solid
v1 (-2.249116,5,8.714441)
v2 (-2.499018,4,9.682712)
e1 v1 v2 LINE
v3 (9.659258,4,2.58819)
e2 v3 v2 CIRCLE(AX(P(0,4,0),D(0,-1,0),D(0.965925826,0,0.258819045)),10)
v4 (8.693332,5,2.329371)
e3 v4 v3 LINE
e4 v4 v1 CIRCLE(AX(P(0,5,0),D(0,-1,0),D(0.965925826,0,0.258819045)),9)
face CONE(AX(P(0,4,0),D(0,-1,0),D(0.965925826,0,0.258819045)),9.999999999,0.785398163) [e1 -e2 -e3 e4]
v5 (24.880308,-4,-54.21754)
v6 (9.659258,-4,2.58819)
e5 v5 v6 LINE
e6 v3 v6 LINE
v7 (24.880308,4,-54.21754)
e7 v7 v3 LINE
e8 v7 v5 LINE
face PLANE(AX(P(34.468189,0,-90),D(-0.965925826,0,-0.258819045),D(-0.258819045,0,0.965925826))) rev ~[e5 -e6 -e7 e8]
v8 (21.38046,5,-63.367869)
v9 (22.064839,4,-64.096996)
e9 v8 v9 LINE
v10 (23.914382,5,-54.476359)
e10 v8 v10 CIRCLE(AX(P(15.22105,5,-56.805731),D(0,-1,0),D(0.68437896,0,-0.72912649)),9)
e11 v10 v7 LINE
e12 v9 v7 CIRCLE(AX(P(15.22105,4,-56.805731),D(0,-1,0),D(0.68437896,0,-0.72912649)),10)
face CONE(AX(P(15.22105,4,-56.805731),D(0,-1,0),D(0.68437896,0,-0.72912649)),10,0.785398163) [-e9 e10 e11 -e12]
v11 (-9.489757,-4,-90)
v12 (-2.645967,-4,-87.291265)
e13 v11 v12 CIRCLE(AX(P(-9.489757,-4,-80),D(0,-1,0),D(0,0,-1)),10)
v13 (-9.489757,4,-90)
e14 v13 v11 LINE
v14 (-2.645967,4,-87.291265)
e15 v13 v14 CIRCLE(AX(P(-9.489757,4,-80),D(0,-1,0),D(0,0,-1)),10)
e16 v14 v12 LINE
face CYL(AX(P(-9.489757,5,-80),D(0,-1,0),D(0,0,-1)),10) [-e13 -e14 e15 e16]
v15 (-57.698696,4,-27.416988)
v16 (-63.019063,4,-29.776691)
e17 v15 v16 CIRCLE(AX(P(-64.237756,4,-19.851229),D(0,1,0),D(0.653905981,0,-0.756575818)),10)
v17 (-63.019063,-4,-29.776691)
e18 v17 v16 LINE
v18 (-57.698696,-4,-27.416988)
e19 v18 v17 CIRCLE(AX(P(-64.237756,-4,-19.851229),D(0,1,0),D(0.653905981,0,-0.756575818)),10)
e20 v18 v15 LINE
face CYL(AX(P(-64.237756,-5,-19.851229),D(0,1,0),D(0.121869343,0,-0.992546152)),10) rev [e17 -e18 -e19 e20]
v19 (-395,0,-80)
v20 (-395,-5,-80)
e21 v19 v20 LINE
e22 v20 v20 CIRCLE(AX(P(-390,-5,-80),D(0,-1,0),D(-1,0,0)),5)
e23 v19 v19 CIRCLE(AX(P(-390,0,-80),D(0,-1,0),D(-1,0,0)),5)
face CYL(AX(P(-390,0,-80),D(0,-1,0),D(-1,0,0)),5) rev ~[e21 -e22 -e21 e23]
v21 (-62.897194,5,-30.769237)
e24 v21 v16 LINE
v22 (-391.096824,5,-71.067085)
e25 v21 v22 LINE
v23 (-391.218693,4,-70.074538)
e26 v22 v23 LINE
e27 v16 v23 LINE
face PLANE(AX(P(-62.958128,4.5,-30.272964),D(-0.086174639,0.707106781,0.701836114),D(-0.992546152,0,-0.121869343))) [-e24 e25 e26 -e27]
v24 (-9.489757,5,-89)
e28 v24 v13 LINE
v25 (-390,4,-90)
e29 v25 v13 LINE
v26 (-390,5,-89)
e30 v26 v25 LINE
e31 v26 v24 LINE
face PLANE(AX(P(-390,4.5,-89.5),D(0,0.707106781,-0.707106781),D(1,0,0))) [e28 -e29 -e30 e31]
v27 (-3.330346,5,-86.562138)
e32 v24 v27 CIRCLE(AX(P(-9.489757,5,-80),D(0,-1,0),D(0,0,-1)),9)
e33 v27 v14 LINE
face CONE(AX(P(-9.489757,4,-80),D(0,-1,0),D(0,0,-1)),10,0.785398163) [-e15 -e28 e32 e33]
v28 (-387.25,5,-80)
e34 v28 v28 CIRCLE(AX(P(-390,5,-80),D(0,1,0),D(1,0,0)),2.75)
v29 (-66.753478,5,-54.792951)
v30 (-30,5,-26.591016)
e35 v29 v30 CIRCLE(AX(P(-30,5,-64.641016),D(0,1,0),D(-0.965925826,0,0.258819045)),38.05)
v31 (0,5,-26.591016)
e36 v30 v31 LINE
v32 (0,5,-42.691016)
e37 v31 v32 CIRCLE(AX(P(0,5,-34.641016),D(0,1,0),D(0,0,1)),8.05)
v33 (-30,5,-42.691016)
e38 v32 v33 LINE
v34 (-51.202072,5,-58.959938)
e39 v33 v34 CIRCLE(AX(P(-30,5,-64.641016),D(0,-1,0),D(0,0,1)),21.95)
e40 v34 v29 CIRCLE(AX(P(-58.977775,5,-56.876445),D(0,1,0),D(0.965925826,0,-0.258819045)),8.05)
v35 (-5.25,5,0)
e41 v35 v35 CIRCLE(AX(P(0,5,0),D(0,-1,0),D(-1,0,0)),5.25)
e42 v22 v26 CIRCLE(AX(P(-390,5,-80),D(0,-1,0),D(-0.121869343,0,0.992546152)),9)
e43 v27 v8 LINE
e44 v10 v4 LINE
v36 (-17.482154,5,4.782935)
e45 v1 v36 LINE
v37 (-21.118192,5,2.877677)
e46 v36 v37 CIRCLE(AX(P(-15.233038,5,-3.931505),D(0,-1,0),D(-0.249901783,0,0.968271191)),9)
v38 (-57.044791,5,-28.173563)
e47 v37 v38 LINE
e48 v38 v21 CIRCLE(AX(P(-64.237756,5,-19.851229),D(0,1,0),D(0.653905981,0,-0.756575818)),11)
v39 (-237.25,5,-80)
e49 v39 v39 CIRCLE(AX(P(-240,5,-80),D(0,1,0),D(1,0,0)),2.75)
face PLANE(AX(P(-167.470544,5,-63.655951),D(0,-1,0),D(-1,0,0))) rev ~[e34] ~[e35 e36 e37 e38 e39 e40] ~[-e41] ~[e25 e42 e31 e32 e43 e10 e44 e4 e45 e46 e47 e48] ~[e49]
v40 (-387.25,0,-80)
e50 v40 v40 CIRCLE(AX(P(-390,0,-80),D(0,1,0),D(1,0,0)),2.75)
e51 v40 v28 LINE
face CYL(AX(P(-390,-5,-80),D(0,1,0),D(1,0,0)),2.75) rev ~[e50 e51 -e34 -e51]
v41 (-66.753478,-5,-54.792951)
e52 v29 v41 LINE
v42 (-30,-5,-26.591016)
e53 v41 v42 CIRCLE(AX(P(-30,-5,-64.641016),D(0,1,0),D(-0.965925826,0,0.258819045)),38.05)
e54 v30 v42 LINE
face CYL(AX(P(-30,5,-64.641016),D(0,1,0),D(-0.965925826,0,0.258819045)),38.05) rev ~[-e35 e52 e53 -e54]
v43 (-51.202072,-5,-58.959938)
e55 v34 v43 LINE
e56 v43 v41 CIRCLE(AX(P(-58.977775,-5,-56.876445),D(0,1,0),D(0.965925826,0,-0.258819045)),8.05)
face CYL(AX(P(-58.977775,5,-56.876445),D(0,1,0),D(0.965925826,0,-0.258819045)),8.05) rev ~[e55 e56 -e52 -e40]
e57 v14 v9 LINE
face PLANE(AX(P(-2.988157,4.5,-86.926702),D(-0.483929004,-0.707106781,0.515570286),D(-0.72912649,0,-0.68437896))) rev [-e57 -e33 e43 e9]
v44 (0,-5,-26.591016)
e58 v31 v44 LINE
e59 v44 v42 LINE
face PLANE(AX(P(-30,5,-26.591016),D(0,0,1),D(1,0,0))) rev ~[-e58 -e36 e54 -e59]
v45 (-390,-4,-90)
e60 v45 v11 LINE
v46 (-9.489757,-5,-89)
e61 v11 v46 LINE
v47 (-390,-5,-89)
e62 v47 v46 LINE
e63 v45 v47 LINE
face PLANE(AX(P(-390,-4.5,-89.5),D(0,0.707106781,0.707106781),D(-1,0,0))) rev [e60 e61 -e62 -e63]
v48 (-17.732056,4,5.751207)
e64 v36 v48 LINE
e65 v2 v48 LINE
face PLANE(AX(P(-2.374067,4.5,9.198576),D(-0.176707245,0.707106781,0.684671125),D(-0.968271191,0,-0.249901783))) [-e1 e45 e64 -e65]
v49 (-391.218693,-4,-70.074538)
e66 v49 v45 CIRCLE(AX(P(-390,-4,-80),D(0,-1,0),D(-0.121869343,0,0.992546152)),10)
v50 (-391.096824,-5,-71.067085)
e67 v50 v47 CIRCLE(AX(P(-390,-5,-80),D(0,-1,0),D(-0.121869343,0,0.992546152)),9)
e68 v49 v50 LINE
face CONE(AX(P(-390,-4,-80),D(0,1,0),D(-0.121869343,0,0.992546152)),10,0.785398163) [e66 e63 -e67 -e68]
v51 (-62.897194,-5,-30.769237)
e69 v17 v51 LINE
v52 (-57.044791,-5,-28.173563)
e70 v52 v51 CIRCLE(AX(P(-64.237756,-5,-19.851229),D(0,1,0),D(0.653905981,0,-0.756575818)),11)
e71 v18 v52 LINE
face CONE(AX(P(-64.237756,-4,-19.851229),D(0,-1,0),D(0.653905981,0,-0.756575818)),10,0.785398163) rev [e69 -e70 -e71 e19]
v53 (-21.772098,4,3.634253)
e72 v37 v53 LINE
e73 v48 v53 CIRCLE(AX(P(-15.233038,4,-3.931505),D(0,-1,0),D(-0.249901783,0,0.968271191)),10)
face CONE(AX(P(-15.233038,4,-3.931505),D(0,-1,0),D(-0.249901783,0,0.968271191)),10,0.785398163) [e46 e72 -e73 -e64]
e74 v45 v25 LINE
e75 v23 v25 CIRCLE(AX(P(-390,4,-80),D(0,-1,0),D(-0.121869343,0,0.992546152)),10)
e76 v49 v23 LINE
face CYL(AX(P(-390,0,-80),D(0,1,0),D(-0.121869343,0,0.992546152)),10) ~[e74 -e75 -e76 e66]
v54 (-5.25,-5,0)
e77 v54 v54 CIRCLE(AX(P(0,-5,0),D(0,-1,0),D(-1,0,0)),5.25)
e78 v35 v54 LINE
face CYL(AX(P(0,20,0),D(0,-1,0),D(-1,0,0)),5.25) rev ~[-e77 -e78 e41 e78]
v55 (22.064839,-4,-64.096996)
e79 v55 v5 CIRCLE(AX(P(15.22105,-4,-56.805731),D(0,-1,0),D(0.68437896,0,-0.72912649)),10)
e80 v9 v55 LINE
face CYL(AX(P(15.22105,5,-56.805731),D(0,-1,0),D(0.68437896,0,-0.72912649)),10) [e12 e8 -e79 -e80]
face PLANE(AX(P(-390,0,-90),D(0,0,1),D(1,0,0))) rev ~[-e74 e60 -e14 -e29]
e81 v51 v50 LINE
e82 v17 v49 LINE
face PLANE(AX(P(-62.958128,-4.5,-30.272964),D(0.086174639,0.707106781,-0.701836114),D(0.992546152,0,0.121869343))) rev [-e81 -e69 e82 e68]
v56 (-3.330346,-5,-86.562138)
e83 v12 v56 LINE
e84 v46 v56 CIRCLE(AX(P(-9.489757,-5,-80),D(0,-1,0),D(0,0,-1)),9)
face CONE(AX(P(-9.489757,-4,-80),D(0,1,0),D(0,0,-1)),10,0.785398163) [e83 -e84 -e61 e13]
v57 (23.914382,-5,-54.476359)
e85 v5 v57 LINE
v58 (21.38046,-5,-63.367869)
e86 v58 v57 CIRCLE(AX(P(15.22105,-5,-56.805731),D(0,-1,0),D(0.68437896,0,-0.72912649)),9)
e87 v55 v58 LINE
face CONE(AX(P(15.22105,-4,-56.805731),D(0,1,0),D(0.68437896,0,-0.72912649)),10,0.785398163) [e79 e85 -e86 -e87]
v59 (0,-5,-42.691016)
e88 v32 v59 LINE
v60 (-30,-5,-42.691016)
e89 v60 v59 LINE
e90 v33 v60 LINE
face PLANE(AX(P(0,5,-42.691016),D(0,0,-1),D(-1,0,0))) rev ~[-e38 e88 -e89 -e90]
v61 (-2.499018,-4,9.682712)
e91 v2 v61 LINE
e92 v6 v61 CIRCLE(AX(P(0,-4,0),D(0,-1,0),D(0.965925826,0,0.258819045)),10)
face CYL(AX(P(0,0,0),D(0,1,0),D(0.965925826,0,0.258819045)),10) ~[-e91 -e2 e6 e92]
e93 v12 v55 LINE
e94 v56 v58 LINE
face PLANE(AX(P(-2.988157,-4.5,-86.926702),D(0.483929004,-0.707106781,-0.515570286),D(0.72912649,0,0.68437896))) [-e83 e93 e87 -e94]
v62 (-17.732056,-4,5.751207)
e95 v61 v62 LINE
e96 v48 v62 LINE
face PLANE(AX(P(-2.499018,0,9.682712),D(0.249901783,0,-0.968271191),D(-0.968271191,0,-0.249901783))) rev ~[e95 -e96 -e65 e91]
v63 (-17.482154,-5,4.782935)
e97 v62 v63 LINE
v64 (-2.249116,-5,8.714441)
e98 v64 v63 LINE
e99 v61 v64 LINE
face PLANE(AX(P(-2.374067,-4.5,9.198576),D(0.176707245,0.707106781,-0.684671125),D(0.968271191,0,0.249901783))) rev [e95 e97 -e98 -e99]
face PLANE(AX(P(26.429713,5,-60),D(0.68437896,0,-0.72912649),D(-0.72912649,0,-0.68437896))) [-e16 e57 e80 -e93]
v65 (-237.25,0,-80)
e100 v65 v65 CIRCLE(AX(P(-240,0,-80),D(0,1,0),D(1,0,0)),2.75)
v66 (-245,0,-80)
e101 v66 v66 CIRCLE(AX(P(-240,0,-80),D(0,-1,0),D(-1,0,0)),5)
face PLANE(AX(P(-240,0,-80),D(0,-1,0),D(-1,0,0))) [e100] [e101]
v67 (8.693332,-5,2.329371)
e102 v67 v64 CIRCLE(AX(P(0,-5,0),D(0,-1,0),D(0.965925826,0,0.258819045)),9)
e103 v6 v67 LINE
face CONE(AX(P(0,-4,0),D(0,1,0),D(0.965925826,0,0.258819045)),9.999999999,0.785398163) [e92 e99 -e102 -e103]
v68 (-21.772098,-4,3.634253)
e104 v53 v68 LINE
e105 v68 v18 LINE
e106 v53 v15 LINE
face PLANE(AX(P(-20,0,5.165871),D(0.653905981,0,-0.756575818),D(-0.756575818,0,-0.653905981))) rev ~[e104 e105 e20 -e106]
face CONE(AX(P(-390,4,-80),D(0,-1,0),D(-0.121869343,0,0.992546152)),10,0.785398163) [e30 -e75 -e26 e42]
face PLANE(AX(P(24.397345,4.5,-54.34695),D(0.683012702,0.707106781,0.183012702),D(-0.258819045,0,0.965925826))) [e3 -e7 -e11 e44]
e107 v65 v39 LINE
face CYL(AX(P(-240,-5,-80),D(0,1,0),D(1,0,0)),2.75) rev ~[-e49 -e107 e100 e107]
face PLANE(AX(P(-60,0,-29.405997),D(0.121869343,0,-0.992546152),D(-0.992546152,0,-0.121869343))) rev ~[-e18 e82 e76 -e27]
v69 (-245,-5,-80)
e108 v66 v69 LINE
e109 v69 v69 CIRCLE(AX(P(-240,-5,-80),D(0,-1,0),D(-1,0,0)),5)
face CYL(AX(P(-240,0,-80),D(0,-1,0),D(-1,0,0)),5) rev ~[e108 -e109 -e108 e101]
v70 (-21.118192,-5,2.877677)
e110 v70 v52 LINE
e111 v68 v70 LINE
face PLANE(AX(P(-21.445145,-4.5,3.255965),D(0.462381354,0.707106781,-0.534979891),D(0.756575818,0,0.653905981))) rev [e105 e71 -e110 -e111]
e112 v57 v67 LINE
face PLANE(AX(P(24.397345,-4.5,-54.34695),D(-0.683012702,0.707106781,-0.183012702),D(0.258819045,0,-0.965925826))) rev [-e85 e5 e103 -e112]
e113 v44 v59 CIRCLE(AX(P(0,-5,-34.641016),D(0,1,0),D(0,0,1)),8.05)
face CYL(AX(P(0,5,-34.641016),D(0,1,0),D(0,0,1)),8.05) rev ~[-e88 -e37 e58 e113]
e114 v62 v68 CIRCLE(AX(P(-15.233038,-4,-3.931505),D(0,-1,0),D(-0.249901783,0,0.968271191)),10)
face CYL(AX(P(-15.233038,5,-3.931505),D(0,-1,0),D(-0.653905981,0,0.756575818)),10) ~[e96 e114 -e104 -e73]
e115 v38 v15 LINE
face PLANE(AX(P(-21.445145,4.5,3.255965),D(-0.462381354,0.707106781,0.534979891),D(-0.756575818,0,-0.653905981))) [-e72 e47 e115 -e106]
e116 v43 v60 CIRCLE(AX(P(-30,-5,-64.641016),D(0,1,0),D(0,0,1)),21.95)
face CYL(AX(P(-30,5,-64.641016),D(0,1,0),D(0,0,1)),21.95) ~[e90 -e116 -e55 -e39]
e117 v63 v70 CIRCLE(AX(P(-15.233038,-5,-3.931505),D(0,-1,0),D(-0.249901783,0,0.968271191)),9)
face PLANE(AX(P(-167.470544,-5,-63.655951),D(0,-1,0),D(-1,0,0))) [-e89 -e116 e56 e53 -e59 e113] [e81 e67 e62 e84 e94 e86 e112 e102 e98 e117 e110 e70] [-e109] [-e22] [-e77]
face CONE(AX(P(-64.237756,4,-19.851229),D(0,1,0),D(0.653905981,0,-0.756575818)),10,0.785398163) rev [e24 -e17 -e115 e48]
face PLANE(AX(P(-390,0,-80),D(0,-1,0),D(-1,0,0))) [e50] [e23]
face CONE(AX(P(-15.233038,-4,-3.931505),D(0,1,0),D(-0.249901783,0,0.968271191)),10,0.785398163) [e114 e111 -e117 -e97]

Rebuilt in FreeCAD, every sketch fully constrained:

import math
import FreeCAD as App
import Part
import Sketcher

V = App.Vector
Q = App.Units.Quantity


def edges_at(feature, points):
    """Names of the edges that pass closest to the given points."""
    edges = feature.Shape.Edges
    near = lambda p: min(range(len(edges)), key=lambda i: edges[i].distToShape(Part.Vertex(*p))[0])
    return sorted({f"Edge{near(p) + 1}" for p in points})


def add_polygon(sketch, points):
    """Adds a closed chain of lines whose ends are joined by coincident constraints."""
    first, n = sketch.GeometryCount, len(points)
    for a, b in zip(points, points[1:] + points[:1]):
        sketch.addGeometry(Part.LineSegment(App.Vector(*a, 0), App.Vector(*b, 0)), False)
    for i in range(n):
        sketch.addConstraint(Sketcher.Constraint("Coincident", first + i, 2, first + (i + 1) % n, 1))

doc = App.newDocument("Part")
body = doc.addObject("PartDesign::Body", "Body")

# Sketch on XZ plane
sketch1 = body.newObject("Sketcher::SketchObject", "Sketch")
sketch1.AttachmentSupport = (doc.getObject("XZ_Plane"), [""])
sketch1.MapMode = "FlatFace"
sketch1.addGeometry([
    Part.LineSegment(V(34, -90, 0), V(-390, -90, 0)),  # 0
    Part.ArcOfCircle(Part.Circle(V(-390, -80, 0), V(0, 0, 1), 10), math.radians(97), math.radians(270)),  # 1
    Part.LineSegment(V(-391, -70, 0), V(-60, -29, 0)),  # 2
    Part.LineSegment(V(-60, -29, 0), V(-20, 5, 0)),  # 3
    Part.LineSegment(V(-20, 5, 0), V(-2, 10, 0)),  # 4
    Part.ArcOfCircle(Part.Circle(V(0, 0, 0), V(0, 0, 1), 10), math.radians(15), math.radians(104)),  # 5
    Part.LineSegment(V(10, 3, 0), V(34, -90, 0)),  # 6
], False)
sketch1.addConstraint([
    Sketcher.Constraint("Tangent", 0, 2, 1, 2),
    Sketcher.Constraint("Tangent", 1, 1, 2, 1),
    Sketcher.Constraint("Coincident", 2, 2, 3, 1),
    Sketcher.Constraint("Coincident", 3, 2, 4, 1),
    Sketcher.Constraint("Tangent", 4, 2, 5, 2),
    Sketcher.Constraint("Tangent", 5, 1, 6, 1),
    Sketcher.Constraint("Coincident", 6, 2, 0, 1),
    Sketcher.Constraint("Horizontal", 0),
    Sketcher.Constraint("Coincident", 5, 3, -1, 1),
    Sketcher.Constraint("Equal", 1, 5),
    Sketcher.Constraint("Radius", 1, 10.0),
    Sketcher.Constraint("Angle", 2, Q("7 deg")),
    Sketcher.Constraint("Angle", 6, Q("-75 deg")),
    Sketcher.Constraint("DistanceX", 1, 3, -1, 1, 390.0),
    Sketcher.Constraint("DistanceY", 1, 3, -1, 1, 80.0),
    Sketcher.Constraint("DistanceX", 2, 2, -1, 1, 60.0),
    Sketcher.Constraint("DistanceX", 3, 2, -1, 1, 20.0),
    Sketcher.Constraint("DistanceY", -1, 1, 3, 2, 5.165871),
])
pad1 = body.newObject("PartDesign::Pad", "Pad")
pad1.Profile = sketch1
pad1.Length = 10
pad1.Midplane = True

# Sketch on XZ plane
sketch2 = body.newObject("Sketcher::SketchObject", "Sketch001")
sketch2.AttachmentSupport = (doc.getObject("XZ_Plane"), [""])
sketch2.MapMode = "FlatFace"
sketch2.AttachmentOffset = App.Placement(V(0, 0, -5), App.Rotation())
sketch2.addGeometry([
    Part.LineSegment(V(-30, -27, 0), V(0, -27, 0)),  # 0
    Part.ArcOfCircle(Part.Circle(V(0, -35, 0), V(0, 0, 1), 8), math.radians(-90), math.radians(90)),  # 1
    Part.LineSegment(V(0, -43, 0), V(-30, -43, 0)),  # 2
    Part.ArcOfCircle(Part.Circle(V(-30, -65, 0), V(0, 0, 1), 22), math.radians(90), math.radians(165)),  # 3
    Part.ArcOfCircle(Part.Circle(V(-59, -57, 0), V(0, 0, 1), 8), math.radians(165), math.radians(345)),  # 4
    Part.ArcOfCircle(Part.Circle(V(-30, -65, 0), V(0, 0, 1), 38), math.radians(90), math.radians(165)),  # 5
], False)
sketch2.addConstraint([
    Sketcher.Constraint("Tangent", 0, 2, 1, 2),
    Sketcher.Constraint("Tangent", 1, 1, 2, 1),
    Sketcher.Constraint("Tangent", 2, 2, 3, 1),
    Sketcher.Constraint("Tangent", 3, 2, 4, 2),
    Sketcher.Constraint("Tangent", 4, 1, 5, 2),
    Sketcher.Constraint("Tangent", 5, 1, 0, 1),
    Sketcher.Constraint("Horizontal", 0),
    Sketcher.Constraint("Horizontal", 2),
    Sketcher.Constraint("Coincident", 5, 3, 3, 3),
    Sketcher.Constraint("PointOnObject", 1, 3, -2),
    Sketcher.Constraint("DistanceX", 0, 1, 0, 2, 30.0),
    Sketcher.Constraint("Radius", 1, 8.05),
    Sketcher.Constraint("Radius", 3, 21.95),
    Sketcher.Constraint("DistanceX", 3, 2, -1, 1, 51.202072),
    Sketcher.Constraint("DistanceY", 4, 1, -1, 1, 54.792951),
])
pocket1 = body.newObject("PartDesign::Pocket", "Pocket")
pocket1.Profile = sketch2
pocket1.Type = "ThroughAll"
pocket1.Reversed = True

# Sketch on XZ plane
sketch3 = body.newObject("Sketcher::SketchObject", "Sketch002")
sketch3.AttachmentSupport = (doc.getObject("XZ_Plane"), [""])
sketch3.MapMode = "FlatFace"
sketch3.AttachmentOffset = App.Placement(V(0, 0, -5), App.Rotation())
sketch3.addGeometry(Part.Circle(V(0, 0, 0), V(0, 0, 1), 5), False)
sketch3.addConstraint([
    Sketcher.Constraint("Coincident", 0, 3, -1, 1),
    Sketcher.Constraint("Diameter", 0, 10.5),
])
doc.recompute()
hole = body.newObject("PartDesign::Hole", "Hole")
hole.Profile = sketch3
hole.ThreadType = "None"
hole.Diameter = 10.5
hole.DepthType = "Dimension"
hole.Depth = 15
hole.DrillPoint = "Angled"
hole.DrillPointAngle = 118
hole.Reversed = True

# Sketch on XZ plane
sketch4 = body.newObject("Sketcher::SketchObject", "Sketch003")
sketch4.AttachmentSupport = (doc.getObject("XZ_Plane"), [""])
sketch4.MapMode = "FlatFace"
sketch4.AttachmentOffset = App.Placement(V(0, 0, 5), App.Rotation())
sketch4.addGeometry([
    Part.Circle(V(-390, -80, 0), V(0, 0, 1), 2.8),
    Part.Circle(V(-240, -80, 0), V(0, 0, 1), 2.8),
], False)
sketch4.addConstraint([
    Sketcher.Constraint("Equal", 0, 1),
    Sketcher.Constraint("Horizontal", 0, 3, 1, 3),
    Sketcher.Constraint("Diameter", 0, 5.5),
    Sketcher.Constraint("DistanceX", 0, 3, -1, 1, 390.0),
    Sketcher.Constraint("DistanceY", 0, 3, -1, 1, 80.0),
    Sketcher.Constraint("DistanceX", 1, 3, -1, 1, 240.0),
])
doc.recompute()
hole2 = body.newObject("PartDesign::Hole", "Hole001")
hole2.Profile = sketch4
hole2.ThreadType = "None"
hole2.Diameter = 5.5
hole2.DepthType = "Dimension"
hole2.Depth = 21.6
hole2.DrillPoint = "Angled"
hole2.DrillPointAngle = 118
hole2.HoleCutType = "Counterbore"
hole2.HoleCutDiameter = 10
hole2.HoleCutDepth = 5

# Sketch on XZ plane
sketch5 = body.newObject("Sketcher::SketchObject", "Sketch004")
sketch5.AttachmentSupport = (doc.getObject("XZ_Plane"), [""])
sketch5.MapMode = "FlatFace"
sketch5.AttachmentOffset = App.Placement(V(0, 0, -5), App.Rotation())
add_polygon(sketch5, [(34, -90), (-6, -90), (26, -60)])  # lines 0-2
sketch5.addConstraint([
    Sketcher.Constraint("Horizontal", 0),
    Sketcher.Constraint("DistanceX", 0, 2, 0, 1, 40.0),
    Sketcher.Constraint("Angle", 2, Q("-75 deg")),
    Sketcher.Constraint("DistanceY", 0, 2, -1, 1, 90.0),
    Sketcher.Constraint("DistanceY", 1, 2, -1, 1, 60.0),
    Sketcher.Constraint("DistanceX", 0, 2, -1, 1, 5.531811),
])
pocket2 = body.newObject("PartDesign::Pocket", "Pocket001")
pocket2.Profile = sketch5
pocket2.Type = "ThroughAll"
pocket2.Reversed = True
doc.recompute()

fillet = body.newObject("PartDesign::Fillet", "Fillet")
fillet.Base = (pocket2, edges_at(pocket2, [
    (-20, 0, 5.166),
    (-60, 0, -29.406),
    (26.43, 0, -60),
    (-5.532, 0, -90),
]))
fillet.Radius = 10
doc.recompute()

chamfer = body.newObject("PartDesign::Chamfer", "Chamfer")
chamfer.Base = (fillet, edges_at(fillet, [
    (-399.981, -5, -80.61),
    (5.04, 5, 8.637),
    (17.27, 5, -25.815),
    (-399.981, 5, -80.61),
    (9.709, 5, -75.694),
    (9.709, -5, -75.694),
    (-199.745, 5, -90),
    (-39.735, 5, -11.891),
    (17.27, -5, -25.815),
    (-10.116, 5, 7.717),
    (-19.874, 5, 4.926),
    (24.838, 5, -59.546),
    (-5.81, 5, -89.298),
    (-199.745, -5, -90),
    (-10.116, -5, 7.717),
    (5.04, -5, 8.637),
    (-39.735, -5, -11.891),
    (-19.874, -5, 4.926),
    (24.838, -5, -59.546),
    (-5.81, -5, -89.298),
    (-60.183, -5, -28.992),
    (-227.119, 5, -49.926),
    (-60.183, 5, -28.992),
    (-227.119, -5, -49.926),
]))
chamfer.Size = 1

doc.recompute()
